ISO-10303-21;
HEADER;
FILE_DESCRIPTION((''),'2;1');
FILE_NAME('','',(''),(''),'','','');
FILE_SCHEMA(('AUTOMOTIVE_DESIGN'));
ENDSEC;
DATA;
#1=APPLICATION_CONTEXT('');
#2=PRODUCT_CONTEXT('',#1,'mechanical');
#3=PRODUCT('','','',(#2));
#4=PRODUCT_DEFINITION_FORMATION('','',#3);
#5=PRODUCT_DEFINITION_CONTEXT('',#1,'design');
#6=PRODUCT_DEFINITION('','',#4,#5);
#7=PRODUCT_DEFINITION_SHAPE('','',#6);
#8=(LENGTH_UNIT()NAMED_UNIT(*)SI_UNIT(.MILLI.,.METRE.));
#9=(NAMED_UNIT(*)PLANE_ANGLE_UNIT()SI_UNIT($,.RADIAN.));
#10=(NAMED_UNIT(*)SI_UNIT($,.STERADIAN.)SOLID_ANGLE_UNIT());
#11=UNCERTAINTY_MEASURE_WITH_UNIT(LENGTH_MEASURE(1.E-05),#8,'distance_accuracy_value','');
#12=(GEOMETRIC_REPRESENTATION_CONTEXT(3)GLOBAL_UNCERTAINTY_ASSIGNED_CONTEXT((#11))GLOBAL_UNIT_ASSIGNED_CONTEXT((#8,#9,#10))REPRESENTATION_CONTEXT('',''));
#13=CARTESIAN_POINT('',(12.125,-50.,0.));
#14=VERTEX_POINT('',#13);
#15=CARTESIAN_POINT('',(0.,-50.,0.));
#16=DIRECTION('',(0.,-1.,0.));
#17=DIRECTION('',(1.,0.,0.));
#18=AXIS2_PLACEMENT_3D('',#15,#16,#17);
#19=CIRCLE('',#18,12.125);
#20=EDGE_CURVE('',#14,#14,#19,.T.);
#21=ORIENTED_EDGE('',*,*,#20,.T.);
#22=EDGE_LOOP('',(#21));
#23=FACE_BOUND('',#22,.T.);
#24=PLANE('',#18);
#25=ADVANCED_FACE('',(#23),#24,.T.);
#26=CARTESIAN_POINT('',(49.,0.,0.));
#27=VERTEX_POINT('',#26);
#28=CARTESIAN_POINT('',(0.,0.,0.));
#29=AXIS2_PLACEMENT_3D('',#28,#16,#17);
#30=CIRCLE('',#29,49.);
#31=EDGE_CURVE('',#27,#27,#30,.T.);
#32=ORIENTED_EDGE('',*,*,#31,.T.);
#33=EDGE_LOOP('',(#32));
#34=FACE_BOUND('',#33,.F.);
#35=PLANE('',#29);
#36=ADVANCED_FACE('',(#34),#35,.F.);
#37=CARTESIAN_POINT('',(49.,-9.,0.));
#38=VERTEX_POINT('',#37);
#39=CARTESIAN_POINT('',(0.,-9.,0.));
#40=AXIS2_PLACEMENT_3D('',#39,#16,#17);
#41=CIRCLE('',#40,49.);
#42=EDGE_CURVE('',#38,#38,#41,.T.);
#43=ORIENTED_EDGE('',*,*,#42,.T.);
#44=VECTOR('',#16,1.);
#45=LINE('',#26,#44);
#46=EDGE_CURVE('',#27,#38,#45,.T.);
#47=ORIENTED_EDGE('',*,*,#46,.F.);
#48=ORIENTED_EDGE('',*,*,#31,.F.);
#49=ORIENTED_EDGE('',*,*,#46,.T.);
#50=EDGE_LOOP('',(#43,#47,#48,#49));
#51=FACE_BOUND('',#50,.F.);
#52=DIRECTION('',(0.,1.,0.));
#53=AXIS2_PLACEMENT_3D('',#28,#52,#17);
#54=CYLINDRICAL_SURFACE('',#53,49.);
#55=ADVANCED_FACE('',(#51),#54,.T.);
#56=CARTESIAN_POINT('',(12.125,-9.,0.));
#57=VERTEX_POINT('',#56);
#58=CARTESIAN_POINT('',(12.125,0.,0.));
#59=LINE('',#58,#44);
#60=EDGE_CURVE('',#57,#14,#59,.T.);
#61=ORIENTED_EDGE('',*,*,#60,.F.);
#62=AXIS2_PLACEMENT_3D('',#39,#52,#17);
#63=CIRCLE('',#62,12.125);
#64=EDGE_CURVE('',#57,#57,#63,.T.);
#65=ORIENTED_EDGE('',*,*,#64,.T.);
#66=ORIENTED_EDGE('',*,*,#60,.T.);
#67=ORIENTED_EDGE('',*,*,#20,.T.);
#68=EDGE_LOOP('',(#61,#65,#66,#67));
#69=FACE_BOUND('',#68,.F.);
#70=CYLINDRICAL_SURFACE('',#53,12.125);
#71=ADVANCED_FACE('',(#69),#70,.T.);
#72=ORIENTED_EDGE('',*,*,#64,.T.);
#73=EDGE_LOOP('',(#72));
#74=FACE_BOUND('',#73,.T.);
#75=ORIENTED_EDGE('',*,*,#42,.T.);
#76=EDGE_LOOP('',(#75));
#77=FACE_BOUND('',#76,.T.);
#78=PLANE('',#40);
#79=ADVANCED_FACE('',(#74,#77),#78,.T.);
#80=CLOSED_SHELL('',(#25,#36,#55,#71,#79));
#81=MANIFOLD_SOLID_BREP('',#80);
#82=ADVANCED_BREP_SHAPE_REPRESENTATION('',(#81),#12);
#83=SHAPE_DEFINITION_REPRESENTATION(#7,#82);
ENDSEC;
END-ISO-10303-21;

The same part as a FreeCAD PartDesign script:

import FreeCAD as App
import Part
import Sketcher

doc = App.newDocument("Part")
body = doc.addObject("PartDesign::Body", "Body")

# Sketch on XZ plane
sketch1 = body.newObject("Sketcher::SketchObject", "Sketch")
sketch1.AttachmentSupport = (doc.getObject("XZ_Plane"), [""])
sketch1.MapMode = "FlatFace"
sketch1.addGeometry(Part.Circle(App.Vector(0, 0, 0), App.Vector(0, 0, 1), 49), False)
sketch1.addConstraint([
    Sketcher.Constraint("Coincident", 0, 3, -1, 1),
    Sketcher.Constraint("Diameter", 0, 98.0),
])
pad1 = body.newObject("PartDesign::Pad", "Pad")
pad1.Profile = sketch1
pad1.Length = 9

# Sketch on XZ plane
sketch2 = body.newObject("Sketcher::SketchObject", "Sketch001")
sketch2.AttachmentSupport = (doc.getObject("XZ_Plane"), [""])
sketch2.MapMode = "FlatFace"
sketch2.addGeometry(Part.Circle(App.Vector(0, 0, 0), App.Vector(0, 0, 1), 12.125), False)
sketch2.addConstraint([
    Sketcher.Constraint("Coincident", 0, 3, -1, 1),
    Sketcher.Constraint("Diameter", 0, 24.25),
])
pad2 = body.newObject("PartDesign::Pad", "Pad001")
pad2.Profile = sketch2
pad2.Length = 50

doc.recompute()
